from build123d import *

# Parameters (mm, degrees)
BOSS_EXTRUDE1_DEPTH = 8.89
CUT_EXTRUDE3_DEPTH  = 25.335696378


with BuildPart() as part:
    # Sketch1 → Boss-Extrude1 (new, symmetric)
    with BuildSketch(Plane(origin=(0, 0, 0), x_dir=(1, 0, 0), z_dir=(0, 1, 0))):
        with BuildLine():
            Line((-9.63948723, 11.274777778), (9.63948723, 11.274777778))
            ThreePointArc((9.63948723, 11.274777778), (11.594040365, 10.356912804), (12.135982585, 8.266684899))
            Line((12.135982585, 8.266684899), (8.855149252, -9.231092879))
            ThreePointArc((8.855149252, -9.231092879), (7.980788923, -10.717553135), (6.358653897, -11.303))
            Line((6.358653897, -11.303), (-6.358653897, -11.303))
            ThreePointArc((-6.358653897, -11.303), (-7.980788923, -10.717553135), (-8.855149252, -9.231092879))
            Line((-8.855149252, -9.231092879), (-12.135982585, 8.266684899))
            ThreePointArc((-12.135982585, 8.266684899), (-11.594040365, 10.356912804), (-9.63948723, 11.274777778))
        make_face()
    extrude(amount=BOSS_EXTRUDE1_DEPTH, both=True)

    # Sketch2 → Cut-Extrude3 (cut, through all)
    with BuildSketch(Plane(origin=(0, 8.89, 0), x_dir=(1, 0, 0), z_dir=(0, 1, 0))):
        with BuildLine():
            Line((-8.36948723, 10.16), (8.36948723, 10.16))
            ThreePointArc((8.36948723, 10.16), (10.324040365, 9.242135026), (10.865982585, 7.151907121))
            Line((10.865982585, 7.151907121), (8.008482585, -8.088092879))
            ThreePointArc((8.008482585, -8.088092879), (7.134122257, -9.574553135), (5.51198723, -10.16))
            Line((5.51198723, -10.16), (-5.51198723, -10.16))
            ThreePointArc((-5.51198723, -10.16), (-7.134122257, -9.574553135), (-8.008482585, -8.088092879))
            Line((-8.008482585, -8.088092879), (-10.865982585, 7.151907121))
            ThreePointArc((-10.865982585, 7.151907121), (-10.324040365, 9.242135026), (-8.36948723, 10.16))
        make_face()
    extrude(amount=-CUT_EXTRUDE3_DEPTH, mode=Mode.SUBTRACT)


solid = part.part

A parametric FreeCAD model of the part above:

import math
import FreeCAD as App
import Part
import Sketcher
from FreeCAD import Vector
Q = App.Units.Quantity

doc = App.newDocument("Part")
params = doc.addObject("Spreadsheet::Sheet", "Params")
for row, (alias, value) in enumerate([
    ("sketch1_radius", "0.1 in"),
    ("pad1_length", "0.7 in"),
    ("sketch2_radius", "0.1 in"),
], start=1):
    params.set(f"A{row}", alias)
    params.set(f"B{row}", "=" + value)
    params.setAlias(f"B{row}", alias)

body = doc.addObject("PartDesign::Body", "Body")

sketch1 = body.newObject("Sketcher::SketchObject", "Sketch")
sketch1.AttachmentSupport = (doc.getObject("XZ_Plane"), [""])
sketch1.MapMode = "FlatFace"
sketch1.addGeometry([
    Part.LineSegment(Vector(9.639487, -11.274778, 0), Vector(-9.639487, -11.274778, 0)),
    Part.ArcOfCircle(Part.Circle(Vector(-9.639487, -8.734778, 0), Vector(0, 0, 1), 2.54), math.radians(169.380345), math.radians(270)),
    Part.LineSegment(Vector(-12.135983, -8.266685, 0), Vector(-8.855149, 9.231093, 0)),
    Part.ArcOfCircle(Part.Circle(Vector(-6.358654, 8.763, 0), Vector(0, 0, 1), 2.54), math.radians(90), math.radians(169.380345)),
    Part.LineSegment(Vector(-6.358654, 11.303, 0), Vector(6.358654, 11.303, 0)),
    Part.ArcOfCircle(Part.Circle(Vector(6.358654, 8.763, 0), Vector(0, 0, 1), 2.54), math.radians(10.619655), math.radians(90)),
    Part.LineSegment(Vector(8.855149, 9.231093, 0), Vector(12.135983, -8.266685, 0)),
    Part.ArcOfCircle(Part.Circle(Vector(9.639487, -8.734778, 0), Vector(0, 0, 1), 2.54), math.radians(-90), math.radians(10.619655)),
], False)
sketch1.addConstraint([
    Sketcher.Constraint("Tangent", 0, 2, 1, 2),
    Sketcher.Constraint("Tangent", 1, 1, 2, 1),
    Sketcher.Constraint("Tangent", 2, 2, 3, 2),
    Sketcher.Constraint("Tangent", 3, 1, 4, 1),
    Sketcher.Constraint("Tangent", 4, 2, 5, 2),
    Sketcher.Constraint("Tangent", 5, 1, 6, 1),
    Sketcher.Constraint("Tangent", 6, 2, 7, 2),
    Sketcher.Constraint("Tangent", 7, 1, 0, 1),
    Sketcher.Constraint("Horizontal", 0),
    Sketcher.Constraint("Horizontal", 4),
    Sketcher.Constraint("Equal", 1, 3),
    Sketcher.Constraint("Equal", 3, 5),
    Sketcher.Constraint("Equal", 5, 7),
    Sketcher.Constraint("Symmetric", 2, 2, 5, 1, -2),
    Sketcher.Constraint("Radius", 1, Q("0.1 in")),
    Sketcher.Constraint("DistanceY", -1, 1, 3, 3, Q("0.345 in")),
    Sketcher.Constraint("Distance", 2, 17.802699),
    Sketcher.Constraint("DistanceX", 2, 2, 5, 1, 17.710299),
    Sketcher.Constraint("DistanceX", 0, 2, 0, 1, 19.278974),
])
sketch1.setExpression("Constraints[14]", "Params.sketch1_radius")
pad1 = body.newObject("PartDesign::Pad", "Pad")
pad1.Profile = sketch1
pad1.setExpression("Length", "Params.pad1_length")
pad1.Midplane = True

sketch2 = body.newObject("Sketcher::SketchObject", "Sketch001")
sketch2.AttachmentSupport = (doc.getObject("XZ_Plane"), [""])
sketch2.MapMode = "FlatFace"
sketch2.AttachmentOffset = App.Placement(Vector(0, 0, -0.35 * 25.4), App.Rotation())
sketch2.addGeometry([
    Part.LineSegment(Vector(8.369487, -10.16, 0), Vector(-8.369487, -10.16, 0)),
    Part.ArcOfCircle(Part.Circle(Vector(-8.369487, -7.62, 0), Vector(0, 0, 1), 2.54), math.radians(169.380345), math.radians(270)),
    Part.LineSegment(Vector(-10.865983, -7.151907, 0), Vector(-8.008483, 8.088093, 0)),
    Part.ArcOfCircle(Part.Circle(Vector(-5.511987, 7.62, 0), Vector(0, 0, 1), 2.54), math.radians(90), math.radians(169.380345)),
    Part.LineSegment(Vector(-5.511987, 10.16, 0), Vector(5.511987, 10.16, 0)),
    Part.ArcOfCircle(Part.Circle(Vector(5.511987, 7.62, 0), Vector(0, 0, 1), 2.54), math.radians(10.619655), math.radians(90)),
    Part.LineSegment(Vector(8.008483, 8.088093, 0), Vector(10.865983, -7.151907, 0)),
    Part.ArcOfCircle(Part.Circle(Vector(8.369487, -7.62, 0), Vector(0, 0, 1), 2.54), math.radians(-90), math.radians(10.619655)),
], False)
sketch2.addConstraint([
    Sketcher.Constraint("Tangent", 0, 2, 1, 2),
    Sketcher.Constraint("Tangent", 1, 1, 2, 1),
    Sketcher.Constraint("Tangent", 2, 2, 3, 2),
    Sketcher.Constraint("Tangent", 3, 1, 4, 1),
    Sketcher.Constraint("Tangent", 4, 2, 5, 2),
    Sketcher.Constraint("Tangent", 5, 1, 6, 1),
    Sketcher.Constraint("Tangent", 6, 2, 7, 2),
    Sketcher.Constraint("Tangent", 7, 1, 0, 1),
    Sketcher.Constraint("Horizontal", 0),
    Sketcher.Constraint("Horizontal", 4),
    Sketcher.Constraint("Equal", 1, 3),
    Sketcher.Constraint("Equal", 3, 5),
    Sketcher.Constraint("Equal", 5, 7),
    Sketcher.Constraint("Symmetric", 2, 2, 5, 1, -2),
    Sketcher.Constraint("Radius", 1, Q("0.1 in")),
    Sketcher.Constraint("DistanceY", 1, 3, -1, 1, Q("0.3 in")),
    Sketcher.Constraint("DistanceY", -1, 1, 3, 3, Q("0.3 in")),
    Sketcher.Constraint("DistanceX", 1, 3, 3, 3, Q("0.1125 in")),
    Sketcher.Constraint("DistanceX", 0, 2, 0, 1, 16.738974),
])
sketch2.setExpression("Constraints[14]", "Params.sketch2_radius")
pocket1 = body.newObject("PartDesign::Pocket", "Pocket")
pocket1.Profile = sketch2
pocket1.Type = "ThroughAll"
pocket1.Reversed = True

doc.recompute()
